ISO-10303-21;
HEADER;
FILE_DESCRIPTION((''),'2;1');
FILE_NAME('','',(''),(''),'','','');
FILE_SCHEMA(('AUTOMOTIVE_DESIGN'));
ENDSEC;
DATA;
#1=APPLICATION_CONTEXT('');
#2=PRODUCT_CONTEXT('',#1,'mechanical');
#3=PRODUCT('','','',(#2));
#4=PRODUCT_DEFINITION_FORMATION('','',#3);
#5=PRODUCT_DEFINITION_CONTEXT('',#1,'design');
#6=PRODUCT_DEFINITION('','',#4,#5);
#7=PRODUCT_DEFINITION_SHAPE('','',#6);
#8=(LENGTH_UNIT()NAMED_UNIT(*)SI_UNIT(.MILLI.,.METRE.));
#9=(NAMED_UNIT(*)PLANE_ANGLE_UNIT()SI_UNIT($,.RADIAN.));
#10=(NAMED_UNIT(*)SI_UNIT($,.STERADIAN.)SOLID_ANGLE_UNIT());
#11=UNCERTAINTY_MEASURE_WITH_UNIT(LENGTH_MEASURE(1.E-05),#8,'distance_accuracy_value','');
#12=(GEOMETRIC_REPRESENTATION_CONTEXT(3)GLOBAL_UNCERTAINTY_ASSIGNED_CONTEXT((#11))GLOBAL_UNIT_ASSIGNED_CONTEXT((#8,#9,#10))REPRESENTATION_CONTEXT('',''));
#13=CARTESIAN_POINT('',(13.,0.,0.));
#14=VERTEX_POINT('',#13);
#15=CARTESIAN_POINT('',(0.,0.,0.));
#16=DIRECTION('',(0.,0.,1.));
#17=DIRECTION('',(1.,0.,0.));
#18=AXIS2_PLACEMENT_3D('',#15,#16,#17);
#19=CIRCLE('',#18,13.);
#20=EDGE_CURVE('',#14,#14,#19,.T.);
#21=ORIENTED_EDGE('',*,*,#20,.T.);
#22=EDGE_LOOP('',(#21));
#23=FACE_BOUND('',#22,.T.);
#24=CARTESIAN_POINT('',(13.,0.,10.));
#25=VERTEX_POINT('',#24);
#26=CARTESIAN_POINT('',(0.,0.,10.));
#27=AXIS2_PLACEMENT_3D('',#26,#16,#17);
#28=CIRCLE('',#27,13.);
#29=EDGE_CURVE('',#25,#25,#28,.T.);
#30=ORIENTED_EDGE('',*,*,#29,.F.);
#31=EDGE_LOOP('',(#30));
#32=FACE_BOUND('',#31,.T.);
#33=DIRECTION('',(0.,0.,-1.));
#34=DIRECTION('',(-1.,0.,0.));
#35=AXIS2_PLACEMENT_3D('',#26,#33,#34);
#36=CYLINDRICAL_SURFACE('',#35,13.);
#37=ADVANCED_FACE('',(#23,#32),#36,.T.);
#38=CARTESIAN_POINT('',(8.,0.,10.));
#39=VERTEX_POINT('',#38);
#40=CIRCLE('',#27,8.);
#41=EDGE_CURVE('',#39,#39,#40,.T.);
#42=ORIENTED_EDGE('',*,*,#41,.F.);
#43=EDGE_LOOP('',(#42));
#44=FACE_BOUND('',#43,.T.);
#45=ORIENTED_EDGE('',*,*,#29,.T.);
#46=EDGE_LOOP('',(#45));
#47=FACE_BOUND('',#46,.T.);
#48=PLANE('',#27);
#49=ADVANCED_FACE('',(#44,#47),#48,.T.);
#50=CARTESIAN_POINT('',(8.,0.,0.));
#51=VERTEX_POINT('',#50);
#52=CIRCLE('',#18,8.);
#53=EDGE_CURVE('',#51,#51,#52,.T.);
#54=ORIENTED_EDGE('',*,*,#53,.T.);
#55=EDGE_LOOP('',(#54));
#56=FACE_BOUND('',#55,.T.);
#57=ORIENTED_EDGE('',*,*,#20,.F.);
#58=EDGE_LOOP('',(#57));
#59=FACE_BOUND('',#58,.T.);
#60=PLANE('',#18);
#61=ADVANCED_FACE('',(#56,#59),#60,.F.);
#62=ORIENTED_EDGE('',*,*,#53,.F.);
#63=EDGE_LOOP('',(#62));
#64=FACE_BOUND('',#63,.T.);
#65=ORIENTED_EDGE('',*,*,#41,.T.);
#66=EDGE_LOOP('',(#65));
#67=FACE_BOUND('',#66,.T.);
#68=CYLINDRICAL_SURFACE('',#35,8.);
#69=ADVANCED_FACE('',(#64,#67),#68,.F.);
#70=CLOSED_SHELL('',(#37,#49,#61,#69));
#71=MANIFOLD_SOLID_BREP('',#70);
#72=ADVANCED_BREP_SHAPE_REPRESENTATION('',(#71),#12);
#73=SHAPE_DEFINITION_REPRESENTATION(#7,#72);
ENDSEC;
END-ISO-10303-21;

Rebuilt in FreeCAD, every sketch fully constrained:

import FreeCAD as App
import Part
import Sketcher
from FreeCAD import Vector

doc = App.newDocument("Part")
body = doc.addObject("PartDesign::Body", "Body")

# Sketch on XY plane
sketch1 = body.newObject("Sketcher::SketchObject", "Sketch")
sketch1.AttachmentSupport = (doc.getObject("XY_Plane"), [""])
sketch1.MapMode = "FlatFace"
sketch1.addGeometry(Part.Circle(Vector(0, 0, 0), Vector(0, 0, 1), 13), False)
sketch1.addGeometry(Part.Circle(Vector(0, 0, 0), Vector(0, 0, 1), 8), False)
sketch1.addConstraint(Sketcher.Constraint("Coincident", 0, 3, -1, 1))
sketch1.addConstraint(Sketcher.Constraint("Coincident", 1, 3, -1, 1))
sketch1.addConstraint(Sketcher.Constraint("Diameter", 0, 26.0))
sketch1.addConstraint(Sketcher.Constraint("Diameter", 1, 16.0))
pad1 = body.newObject("PartDesign::Pad", "Pad")
pad1.Profile = sketch1
pad1.Length = 10

doc.recompute()
